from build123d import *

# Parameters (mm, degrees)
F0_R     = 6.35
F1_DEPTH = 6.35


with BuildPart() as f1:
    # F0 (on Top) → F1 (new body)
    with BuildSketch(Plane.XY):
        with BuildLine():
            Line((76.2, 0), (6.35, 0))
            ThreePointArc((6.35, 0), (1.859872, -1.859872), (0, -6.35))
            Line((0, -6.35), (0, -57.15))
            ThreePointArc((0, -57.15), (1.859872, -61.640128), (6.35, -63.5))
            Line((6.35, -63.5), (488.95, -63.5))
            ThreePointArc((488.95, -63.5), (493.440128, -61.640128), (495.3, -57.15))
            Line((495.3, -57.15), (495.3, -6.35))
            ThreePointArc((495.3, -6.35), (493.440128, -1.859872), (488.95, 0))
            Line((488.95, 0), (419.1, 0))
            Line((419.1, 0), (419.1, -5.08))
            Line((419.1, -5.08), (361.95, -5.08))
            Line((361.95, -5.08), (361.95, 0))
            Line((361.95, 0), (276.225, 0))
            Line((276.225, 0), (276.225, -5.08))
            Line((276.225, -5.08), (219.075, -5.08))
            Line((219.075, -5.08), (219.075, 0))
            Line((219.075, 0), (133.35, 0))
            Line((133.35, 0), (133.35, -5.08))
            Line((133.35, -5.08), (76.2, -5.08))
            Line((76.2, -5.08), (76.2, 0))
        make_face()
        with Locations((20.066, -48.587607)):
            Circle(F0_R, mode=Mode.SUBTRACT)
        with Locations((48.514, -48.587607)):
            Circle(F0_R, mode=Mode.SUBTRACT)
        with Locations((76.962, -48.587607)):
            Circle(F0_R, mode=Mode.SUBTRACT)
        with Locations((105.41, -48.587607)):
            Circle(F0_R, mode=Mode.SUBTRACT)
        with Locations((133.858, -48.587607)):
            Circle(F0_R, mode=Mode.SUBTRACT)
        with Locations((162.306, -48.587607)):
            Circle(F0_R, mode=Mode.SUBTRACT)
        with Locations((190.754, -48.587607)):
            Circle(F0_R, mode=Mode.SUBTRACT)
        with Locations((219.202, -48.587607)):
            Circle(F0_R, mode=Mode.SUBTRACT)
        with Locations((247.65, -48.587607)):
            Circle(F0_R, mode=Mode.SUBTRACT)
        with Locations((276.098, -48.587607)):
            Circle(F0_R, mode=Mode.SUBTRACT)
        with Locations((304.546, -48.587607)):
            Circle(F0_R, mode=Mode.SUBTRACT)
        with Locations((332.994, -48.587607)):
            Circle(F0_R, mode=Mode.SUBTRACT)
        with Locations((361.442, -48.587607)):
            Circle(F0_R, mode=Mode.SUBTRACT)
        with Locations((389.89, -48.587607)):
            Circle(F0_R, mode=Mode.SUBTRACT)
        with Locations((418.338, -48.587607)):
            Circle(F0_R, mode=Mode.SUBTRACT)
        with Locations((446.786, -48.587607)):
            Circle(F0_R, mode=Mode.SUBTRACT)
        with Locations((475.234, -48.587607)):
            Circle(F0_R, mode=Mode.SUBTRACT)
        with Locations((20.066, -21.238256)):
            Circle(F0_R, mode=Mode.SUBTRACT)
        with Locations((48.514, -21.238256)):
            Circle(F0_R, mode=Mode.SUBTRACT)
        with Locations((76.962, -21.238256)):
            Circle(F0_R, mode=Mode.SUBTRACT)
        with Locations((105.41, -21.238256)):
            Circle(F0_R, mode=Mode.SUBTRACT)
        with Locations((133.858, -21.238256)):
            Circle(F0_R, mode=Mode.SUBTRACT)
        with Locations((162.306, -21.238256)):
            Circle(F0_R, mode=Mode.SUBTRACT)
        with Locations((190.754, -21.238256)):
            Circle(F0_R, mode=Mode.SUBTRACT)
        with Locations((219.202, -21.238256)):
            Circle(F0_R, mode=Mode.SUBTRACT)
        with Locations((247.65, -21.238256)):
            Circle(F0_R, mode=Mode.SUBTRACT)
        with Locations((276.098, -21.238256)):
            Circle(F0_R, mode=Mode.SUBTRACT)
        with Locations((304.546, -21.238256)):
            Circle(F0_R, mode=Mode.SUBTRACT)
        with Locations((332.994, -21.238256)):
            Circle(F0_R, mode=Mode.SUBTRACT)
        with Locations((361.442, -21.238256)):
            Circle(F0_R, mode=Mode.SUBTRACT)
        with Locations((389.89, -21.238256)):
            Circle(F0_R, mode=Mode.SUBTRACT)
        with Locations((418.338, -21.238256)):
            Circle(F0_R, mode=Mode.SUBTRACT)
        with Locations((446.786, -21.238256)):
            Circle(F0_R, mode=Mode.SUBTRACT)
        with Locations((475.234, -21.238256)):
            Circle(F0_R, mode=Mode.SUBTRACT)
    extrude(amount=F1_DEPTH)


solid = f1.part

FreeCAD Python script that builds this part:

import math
import FreeCAD as App
import Part
import Sketcher
Q = App.Units.Quantity

doc = App.newDocument("Part")
params = doc.addObject("Spreadsheet::Sheet", "Params")
for row, (alias, value) in enumerate([
    ("sketch1_diameter", "0.5 in"),
    ("sketch1_width", "19 in"),
    ("sketch1_height", "2 in"),
    ("sketch1_height2", "0.2 in"),
    ("sketch1_width2", "2.25 in"),
    ("pad1_length", "0.25 in"),
], start=1):
    params.set(f"A{row}", alias)
    params.set(f"B{row}", "=" + value)
    params.setAlias(f"B{row}", alias)

body = doc.addObject("PartDesign::Body", "Body")

# Sketch on XY plane
sketch1 = body.newObject("Sketcher::SketchObject", "Sketch")
sketch1.AttachmentSupport = (doc.getObject("XY_Plane"), [""])
sketch1.MapMode = "FlatFace"
sketch1.addGeometry([
    Part.LineSegment(App.Vector(76, 0, 0), App.Vector(6, 0, 0)),  # 0
    Part.ArcOfCircle(Part.Circle(App.Vector(6, -6, 0), App.Vector(0, 0, 1), 6), math.radians(90), math.radians(180)),  # 1
    Part.LineSegment(App.Vector(0, -6, 0), App.Vector(0, -57, 0)),  # 2
    Part.ArcOfCircle(Part.Circle(App.Vector(6, -57, 0), App.Vector(0, 0, 1), 6), math.radians(-180), math.radians(-90)),  # 3
    Part.LineSegment(App.Vector(6, -64, 0), App.Vector(489, -64, 0)),  # 4
    Part.ArcOfCircle(Part.Circle(App.Vector(489, -57, 0), App.Vector(0, 0, 1), 6), math.radians(-90), math.radians(0)),  # 5
    Part.LineSegment(App.Vector(495, -57, 0), App.Vector(495, -6, 0)),  # 6
    Part.ArcOfCircle(Part.Circle(App.Vector(489, -6, 0), App.Vector(0, 0, 1), 6), math.radians(0), math.radians(90)),  # 7
    Part.LineSegment(App.Vector(489, 0, 0), App.Vector(419, 0, 0)),  # 8
    Part.LineSegment(App.Vector(419, 0, 0), App.Vector(419, -5, 0)),  # 9
    Part.LineSegment(App.Vector(419, -5, 0), App.Vector(362, -5, 0)),  # 10
    Part.LineSegment(App.Vector(362, -5, 0), App.Vector(362, 0, 0)),  # 11
    Part.LineSegment(App.Vector(362, 0, 0), App.Vector(276, 0, 0)),  # 12
    Part.LineSegment(App.Vector(276, 0, 0), App.Vector(276, -5, 0)),  # 13
    Part.LineSegment(App.Vector(276, -5, 0), App.Vector(219, -5, 0)),  # 14
    Part.LineSegment(App.Vector(219, -5, 0), App.Vector(219, 0, 0)),  # 15
    Part.LineSegment(App.Vector(219, 0, 0), App.Vector(133, 0, 0)),  # 16
    Part.LineSegment(App.Vector(133, 0, 0), App.Vector(133, -5, 0)),  # 17
    Part.LineSegment(App.Vector(133, -5, 0), App.Vector(76, -5, 0)),  # 18
    Part.LineSegment(App.Vector(76, -5, 0), App.Vector(76, 0, 0)),  # 19
    Part.Circle(App.Vector(20, -49, 0), App.Vector(0, 0, 1), 6),  # 20
    Part.Circle(App.Vector(49, -49, 0), App.Vector(0, 0, 1), 6),  # 21
    Part.Circle(App.Vector(77, -49, 0), App.Vector(0, 0, 1), 6),  # 22
    Part.Circle(App.Vector(105, -49, 0), App.Vector(0, 0, 1), 6),  # 23
    Part.Circle(App.Vector(134, -49, 0), App.Vector(0, 0, 1), 6),  # 24
    Part.Circle(App.Vector(162, -49, 0), App.Vector(0, 0, 1), 6),  # 25
    Part.Circle(App.Vector(191, -49, 0), App.Vector(0, 0, 1), 6),  # 26
    Part.Circle(App.Vector(219, -49, 0), App.Vector(0, 0, 1), 6),  # 27
    Part.Circle(App.Vector(248, -49, 0), App.Vector(0, 0, 1), 6),  # 28
    Part.Circle(App.Vector(276, -49, 0), App.Vector(0, 0, 1), 6),  # 29
    Part.Circle(App.Vector(305, -49, 0), App.Vector(0, 0, 1), 6),  # 30
    Part.Circle(App.Vector(333, -49, 0), App.Vector(0, 0, 1), 6),  # 31
    Part.Circle(App.Vector(361, -49, 0), App.Vector(0, 0, 1), 6),  # 32
    Part.Circle(App.Vector(390, -49, 0), App.Vector(0, 0, 1), 6),  # 33
    Part.Circle(App.Vector(418, -49, 0), App.Vector(0, 0, 1), 6),  # 34
    Part.Circle(App.Vector(447, -49, 0), App.Vector(0, 0, 1), 6),  # 35
    Part.Circle(App.Vector(475, -49, 0), App.Vector(0, 0, 1), 6),  # 36
    Part.Circle(App.Vector(20, -21, 0), App.Vector(0, 0, 1), 6),  # 37
    Part.Circle(App.Vector(49, -21, 0), App.Vector(0, 0, 1), 6),  # 38
    Part.Circle(App.Vector(77, -21, 0), App.Vector(0, 0, 1), 6),  # 39
    Part.Circle(App.Vector(105, -21, 0), App.Vector(0, 0, 1), 6),  # 40
    Part.Circle(App.Vector(134, -21, 0), App.Vector(0, 0, 1), 6),  # 41
    Part.Circle(App.Vector(162, -21, 0), App.Vector(0, 0, 1), 6),  # 42
    Part.Circle(App.Vector(191, -21, 0), App.Vector(0, 0, 1), 6),  # 43
    Part.Circle(App.Vector(219, -21, 0), App.Vector(0, 0, 1), 6),  # 44
    Part.Circle(App.Vector(248, -21, 0), App.Vector(0, 0, 1), 6),  # 45
    Part.Circle(App.Vector(276, -21, 0), App.Vector(0, 0, 1), 6),  # 46
    Part.Circle(App.Vector(305, -21, 0), App.Vector(0, 0, 1), 6),  # 47
    Part.Circle(App.Vector(333, -21, 0), App.Vector(0, 0, 1), 6),  # 48
    Part.Circle(App.Vector(361, -21, 0), App.Vector(0, 0, 1), 6),  # 49
    Part.Circle(App.Vector(390, -21, 0), App.Vector(0, 0, 1), 6),  # 50
    Part.Circle(App.Vector(418, -21, 0), App.Vector(0, 0, 1), 6),  # 51
    Part.Circle(App.Vector(447, -21, 0), App.Vector(0, 0, 1), 6),  # 52
    Part.Circle(App.Vector(475, -21, 0), App.Vector(0, 0, 1), 6),  # 53
], False)
sketch1.addConstraint([
    Sketcher.Constraint("Tangent", 0, 2, 1, 1),
    Sketcher.Constraint("Tangent", 1, 2, 2, 1),
    Sketcher.Constraint("Tangent", 2, 2, 3, 1),
    Sketcher.Constraint("Tangent", 3, 2, 4, 1),
    Sketcher.Constraint("Tangent", 4, 2, 5, 1),
    Sketcher.Constraint("Tangent", 5, 2, 6, 1),
    Sketcher.Constraint("Tangent", 6, 2, 7, 1),
    Sketcher.Constraint("Tangent", 7, 2, 8, 1),
    Sketcher.Constraint("Coincident", 8, 2, 9, 1),
    Sketcher.Constraint("Coincident", 9, 2, 10, 1),
    Sketcher.Constraint("Coincident", 10, 2, 11, 1),
    Sketcher.Constraint("Coincident", 11, 2, 12, 1),
    Sketcher.Constraint("Coincident", 12, 2, 13, 1),
    Sketcher.Constraint("Coincident", 13, 2, 14, 1),
    Sketcher.Constraint("Coincident", 14, 2, 15, 1),
    Sketcher.Constraint("Coincident", 15, 2, 16, 1),
    Sketcher.Constraint("Coincident", 16, 2, 17, 1),
    Sketcher.Constraint("Coincident", 17, 2, 18, 1),
    Sketcher.Constraint("Coincident", 18, 2, 19, 1),
    Sketcher.Constraint("Coincident", 19, 2, 0, 1),
    Sketcher.Constraint("Horizontal", 0),
    Sketcher.Constraint("Vertical", 2),
    Sketcher.Constraint("Horizontal", 4),
    Sketcher.Constraint("Vertical", 6),
    Sketcher.Constraint("Horizontal", 8),
    Sketcher.Constraint("Vertical", 9),
    Sketcher.Constraint("Horizontal", 10),
    Sketcher.Constraint("Vertical", 11),
    Sketcher.Constraint("Horizontal", 12),
    Sketcher.Constraint("Vertical", 13),
    Sketcher.Constraint("Horizontal", 14),
    Sketcher.Constraint("Vertical", 15),
    Sketcher.Constraint("Horizontal", 16),
    Sketcher.Constraint("Vertical", 17),
    Sketcher.Constraint("Horizontal", 18),
    Sketcher.Constraint("Vertical", 19),
    Sketcher.Constraint("Equal", 1, 3),
    Sketcher.Constraint("Equal", 3, 5),
    Sketcher.Constraint("Equal", 5, 7),
    Sketcher.Constraint("Equal", 7, 20),
    Sketcher.Constraint("Equal", 20, 21),
    Sketcher.Constraint("Equal", 21, 22),
    Sketcher.Constraint("Equal", 22, 23),
    Sketcher.Constraint("Equal", 23, 24),
    Sketcher.Constraint("Equal", 24, 25),
    Sketcher.Constraint("Equal", 25, 26),
    Sketcher.Constraint("Equal", 26, 27),
    Sketcher.Constraint("Equal", 27, 28),
    Sketcher.Constraint("Equal", 28, 29),
    Sketcher.Constraint("Equal", 29, 30),
    Sketcher.Constraint("Equal", 30, 31),
    Sketcher.Constraint("Equal", 31, 32),
    Sketcher.Constraint("Equal", 32, 33),
    Sketcher.Constraint("Equal", 33, 34),
    Sketcher.Constraint("Equal", 34, 35),
    Sketcher.Constraint("Equal", 35, 36),
    Sketcher.Constraint("Equal", 36, 37),
    Sketcher.Constraint("Equal", 37, 38),
    Sketcher.Constraint("Equal", 38, 39),
    Sketcher.Constraint("Equal", 39, 40),
    Sketcher.Constraint("Equal", 40, 41),
    Sketcher.Constraint("Equal", 41, 42),
    Sketcher.Constraint("Equal", 42, 43),
    Sketcher.Constraint("Equal", 43, 44),
    Sketcher.Constraint("Equal", 44, 45),
    Sketcher.Constraint("Equal", 45, 46),
    Sketcher.Constraint("Equal", 46, 47),
    Sketcher.Constraint("Equal", 47, 48),
    Sketcher.Constraint("Equal", 48, 49),
    Sketcher.Constraint("Equal", 49, 50),
    Sketcher.Constraint("Equal", 50, 51),
    Sketcher.Constraint("Equal", 51, 52),
    Sketcher.Constraint("Equal", 52, 53),
    Sketcher.Constraint("PointOnObject", 0, 2, -1),
    Sketcher.Constraint("PointOnObject", 1, 2, -2),
    Sketcher.Constraint("PointOnObject", 7, 2, -1),
    Sketcher.Constraint("PointOnObject", 11, 2, -1),
    Sketcher.Constraint("PointOnObject", 15, 2, -1),
    Sketcher.Constraint("Horizontal", 20, 3, 21, 3),
    Sketcher.Constraint("Horizontal", 21, 3, 22, 3),
    Sketcher.Constraint("Horizontal", 22, 3, 23, 3),
    Sketcher.Constraint("Horizontal", 23, 3, 24, 3),
    Sketcher.Constraint("Horizontal", 24, 3, 25, 3),
    Sketcher.Constraint("Horizontal", 25, 3, 26, 3),
    Sketcher.Constraint("Horizontal", 26, 3, 27, 3),
    Sketcher.Constraint("Horizontal", 27, 3, 28, 3),
    Sketcher.Constraint("Horizontal", 28, 3, 29, 3),
    Sketcher.Constraint("Horizontal", 29, 3, 30, 3),
    Sketcher.Constraint("Horizontal", 30, 3, 31, 3),
    Sketcher.Constraint("Horizontal", 31, 3, 32, 3),
    Sketcher.Constraint("Horizontal", 32, 3, 33, 3),
    Sketcher.Constraint("Horizontal", 33, 3, 34, 3),
    Sketcher.Constraint("Horizontal", 34, 3, 35, 3),
    Sketcher.Constraint("Horizontal", 35, 3, 36, 3),
    Sketcher.Constraint("Horizontal", 37, 3, 38, 3),
    Sketcher.Constraint("Horizontal", 38, 3, 39, 3),
    Sketcher.Constraint("Horizontal", 39, 3, 40, 3),
    Sketcher.Constraint("Horizontal", 40, 3, 41, 3),
    Sketcher.Constraint("Horizontal", 41, 3, 42, 3),
    Sketcher.Constraint("Horizontal", 42, 3, 43, 3),
    Sketcher.Constraint("Horizontal", 43, 3, 44, 3),
    Sketcher.Constraint("Horizontal", 44, 3, 45, 3),
    Sketcher.Constraint("Horizontal", 45, 3, 46, 3),
    Sketcher.Constraint("Horizontal", 46, 3, 47, 3),
    Sketcher.Constraint("Horizontal", 47, 3, 48, 3),
    Sketcher.Constraint("Horizontal", 48, 3, 49, 3),
    Sketcher.Constraint("Horizontal", 49, 3, 50, 3),
    Sketcher.Constraint("Horizontal", 50, 3, 51, 3),
    Sketcher.Constraint("Horizontal", 51, 3, 52, 3),
    Sketcher.Constraint("Horizontal", 52, 3, 53, 3),
    Sketcher.Constraint("Horizontal", 10, 2, 13, 2),
    Sketcher.Constraint("Horizontal", 14, 2, 17, 2),
    Sketcher.Constraint("Vertical", 20, 3, 37, 3),
    Sketcher.Constraint("Vertical", 21, 3, 38, 3),
    Sketcher.Constraint("Vertical", 22, 3, 39, 3),
    Sketcher.Constraint("Vertical", 23, 3, 40, 3),
    Sketcher.Constraint("Vertical", 24, 3, 41, 3),
    Sketcher.Constraint("Vertical", 25, 3, 42, 3),
    Sketcher.Constraint("Vertical", 26, 3, 43, 3),
    Sketcher.Constraint("Vertical", 27, 3, 44, 3),
    Sketcher.Constraint("Vertical", 28, 3, 45, 3),
    Sketcher.Constraint("Vertical", 29, 3, 46, 3),
    Sketcher.Constraint("Vertical", 30, 3, 47, 3),
    Sketcher.Constraint("Vertical", 31, 3, 48, 3),
    Sketcher.Constraint("Vertical", 32, 3, 49, 3),
    Sketcher.Constraint("Vertical", 33, 3, 50, 3),
    Sketcher.Constraint("Vertical", 34, 3, 51, 3),
    Sketcher.Constraint("Vertical", 35, 3, 52, 3),
    Sketcher.Constraint("Vertical", 36, 3, 53, 3),
    Sketcher.Constraint("Equal", 0, 8),
    Sketcher.Constraint("Equal", 10, 14),
    Sketcher.Constraint("Equal", 12, 16),
    Sketcher.Constraint("Equal", 14, 18),
    Sketcher.Constraint("Diameter", 20, Q("0.5 in")),
    Sketcher.Constraint("DistanceX", 4, 1, 4, 2, Q("19 in")),
    Sketcher.Constraint("DistanceY", 2, 2, 2, 1, Q("2 in")),
    Sketcher.Constraint("DistanceY", 9, 2, 9, 1, Q("0.2 in")),
    Sketcher.Constraint("DistanceX", -1, 1, 18, 2, Q("3 in")),
    Sketcher.Constraint("DistanceX", 10, 2, 10, 1, Q("2.25 in")),
    Sketcher.Constraint("DistanceX", 3, 3, 23, 3, Q("3.9 in")),
    Sketcher.Constraint("DistanceX", 20, 3, 25, 3, Q("5.6 in")),
    Sketcher.Constraint("DistanceX", 21, 3, 26, 3, Q("5.6 in")),
    Sketcher.Constraint("DistanceX", 22, 3, 27, 3, Q("5.6 in")),
    Sketcher.Constraint("DistanceX", 23, 3, 28, 3, Q("5.6 in")),
    Sketcher.Constraint("DistanceX", 24, 3, 29, 3, Q("5.6 in")),
    Sketcher.Constraint("DistanceX", 25, 3, 30, 3, Q("5.6 in")),
    Sketcher.Constraint("DistanceX", 26, 3, 31, 3, Q("5.6 in")),
    Sketcher.Constraint("DistanceX", 33, 3, 5, 3, Q("3.9 in")),
    Sketcher.Constraint("DistanceX", -1, 1, 20, 3, Q("0.79 in")),
    Sketcher.Constraint("DistanceX", -1, 1, 21, 3, Q("1.91 in")),
    Sketcher.Constraint("DistanceX", -1, 1, 22, 3, Q("3.03 in")),
    Sketcher.Constraint("DistanceX", -1, 1, 24, 3, Q("5.27 in")),
    Sketcher.Constraint("DistanceX", -1, 1, 32, 3, Q("14.23 in")),
    Sketcher.Constraint("DistanceX", -1, 1, 34, 3, Q("16.47 in")),
    Sketcher.Constraint("DistanceX", -1, 1, 35, 3, Q("17.59 in")),
    Sketcher.Constraint("DistanceX", -1, 1, 36, 3, Q("18.71 in")),
    Sketcher.Constraint("DistanceY", 20, 3, 37, 3, 27.349351),
    Sketcher.Constraint("DistanceY", 20, 3, -1, 1, 48.587607),
])
sketch1.setExpression("Constraints[133]", "Params.sketch1_diameter")
sketch1.setExpression("Constraints[134]", "Params.sketch1_width")
sketch1.setExpression("Constraints[135]", "Params.sketch1_height")
sketch1.setExpression("Constraints[136]", "Params.sketch1_height2")
sketch1.setExpression("Constraints[138]", "Params.sketch1_width2")
pad1 = body.newObject("PartDesign::Pad", "Pad")
pad1.Profile = sketch1
pad1.setExpression("Length", "Params.pad1_length")

doc.recompute()
